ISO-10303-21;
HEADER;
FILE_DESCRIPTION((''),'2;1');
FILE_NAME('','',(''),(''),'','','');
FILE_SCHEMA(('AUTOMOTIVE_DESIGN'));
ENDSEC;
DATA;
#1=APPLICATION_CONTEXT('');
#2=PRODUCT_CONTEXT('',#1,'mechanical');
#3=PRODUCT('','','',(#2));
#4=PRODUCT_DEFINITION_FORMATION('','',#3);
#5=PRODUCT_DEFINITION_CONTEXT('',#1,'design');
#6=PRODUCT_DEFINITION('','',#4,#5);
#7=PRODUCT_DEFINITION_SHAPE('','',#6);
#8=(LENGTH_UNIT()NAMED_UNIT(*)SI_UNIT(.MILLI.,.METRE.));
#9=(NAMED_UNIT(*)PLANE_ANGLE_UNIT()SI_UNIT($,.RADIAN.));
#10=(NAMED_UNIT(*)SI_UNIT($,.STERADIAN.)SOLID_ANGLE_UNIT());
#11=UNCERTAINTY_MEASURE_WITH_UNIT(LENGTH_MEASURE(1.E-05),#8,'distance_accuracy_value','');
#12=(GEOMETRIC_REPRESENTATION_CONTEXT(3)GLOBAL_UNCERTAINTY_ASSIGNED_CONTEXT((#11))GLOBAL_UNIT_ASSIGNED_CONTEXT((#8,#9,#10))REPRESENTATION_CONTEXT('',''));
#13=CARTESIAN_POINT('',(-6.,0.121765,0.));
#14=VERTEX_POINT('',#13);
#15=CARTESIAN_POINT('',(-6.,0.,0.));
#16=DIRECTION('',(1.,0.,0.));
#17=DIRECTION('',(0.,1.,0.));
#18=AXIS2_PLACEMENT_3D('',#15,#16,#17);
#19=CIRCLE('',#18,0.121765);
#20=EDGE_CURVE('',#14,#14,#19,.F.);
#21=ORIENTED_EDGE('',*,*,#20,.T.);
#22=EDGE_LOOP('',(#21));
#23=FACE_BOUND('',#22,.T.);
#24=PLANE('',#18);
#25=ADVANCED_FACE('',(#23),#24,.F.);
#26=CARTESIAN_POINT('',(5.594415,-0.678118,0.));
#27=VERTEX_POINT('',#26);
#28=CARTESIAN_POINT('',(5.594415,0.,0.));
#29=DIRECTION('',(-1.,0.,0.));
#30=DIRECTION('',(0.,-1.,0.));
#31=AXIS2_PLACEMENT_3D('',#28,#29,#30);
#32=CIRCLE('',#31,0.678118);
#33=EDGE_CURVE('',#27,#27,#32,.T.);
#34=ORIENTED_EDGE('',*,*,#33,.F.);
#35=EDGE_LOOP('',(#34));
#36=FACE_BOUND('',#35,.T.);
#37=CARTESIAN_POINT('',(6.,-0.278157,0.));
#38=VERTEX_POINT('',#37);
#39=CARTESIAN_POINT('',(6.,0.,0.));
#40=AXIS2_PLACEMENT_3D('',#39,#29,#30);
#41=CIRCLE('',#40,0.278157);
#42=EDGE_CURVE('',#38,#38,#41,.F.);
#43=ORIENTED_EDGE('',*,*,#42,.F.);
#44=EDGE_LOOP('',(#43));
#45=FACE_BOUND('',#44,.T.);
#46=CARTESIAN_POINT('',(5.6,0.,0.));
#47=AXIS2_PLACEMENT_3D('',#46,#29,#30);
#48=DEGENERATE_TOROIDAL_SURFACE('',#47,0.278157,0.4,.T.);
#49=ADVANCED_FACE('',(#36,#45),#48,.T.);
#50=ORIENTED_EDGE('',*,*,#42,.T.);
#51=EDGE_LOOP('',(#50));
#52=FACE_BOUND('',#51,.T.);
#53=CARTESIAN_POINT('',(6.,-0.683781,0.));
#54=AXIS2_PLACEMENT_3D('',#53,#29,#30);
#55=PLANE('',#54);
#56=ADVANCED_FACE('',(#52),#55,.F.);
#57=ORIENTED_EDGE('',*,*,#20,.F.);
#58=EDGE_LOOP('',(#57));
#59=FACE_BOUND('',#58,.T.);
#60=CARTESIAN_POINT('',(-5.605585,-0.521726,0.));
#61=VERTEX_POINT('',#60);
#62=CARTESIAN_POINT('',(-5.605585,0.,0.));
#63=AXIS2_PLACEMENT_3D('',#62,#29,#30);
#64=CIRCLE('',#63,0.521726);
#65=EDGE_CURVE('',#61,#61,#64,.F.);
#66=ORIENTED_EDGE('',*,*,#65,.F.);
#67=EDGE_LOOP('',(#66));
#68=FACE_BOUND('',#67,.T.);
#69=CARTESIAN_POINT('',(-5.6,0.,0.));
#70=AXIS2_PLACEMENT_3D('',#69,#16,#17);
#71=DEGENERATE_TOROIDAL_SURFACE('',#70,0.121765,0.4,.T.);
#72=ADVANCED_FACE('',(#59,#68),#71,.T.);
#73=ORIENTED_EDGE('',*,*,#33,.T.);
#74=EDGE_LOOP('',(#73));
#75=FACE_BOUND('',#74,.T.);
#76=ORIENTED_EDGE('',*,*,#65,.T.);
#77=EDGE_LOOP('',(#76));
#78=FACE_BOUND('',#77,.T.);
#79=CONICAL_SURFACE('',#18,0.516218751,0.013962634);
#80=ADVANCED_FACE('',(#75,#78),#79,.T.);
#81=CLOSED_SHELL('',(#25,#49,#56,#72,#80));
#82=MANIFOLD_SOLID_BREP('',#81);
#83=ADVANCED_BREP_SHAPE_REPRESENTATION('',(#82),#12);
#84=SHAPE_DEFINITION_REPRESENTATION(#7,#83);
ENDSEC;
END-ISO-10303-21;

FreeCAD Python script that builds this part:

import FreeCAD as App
import Part
import Sketcher
from FreeCAD import Vector
Q = App.Units.Quantity


def edges_at(feature, points):
    """Names of the edges that pass closest to the given points."""
    edges = feature.Shape.Edges
    near = lambda p: min(range(len(edges)), key=lambda i: edges[i].distToShape(Part.Vertex(*p))[0])
    return sorted({f"Edge{near(p) + 1}" for p in points})

doc = App.newDocument("Part")
body = doc.addObject("PartDesign::Body", "Body")

# Sketch on XY plane
sketch1 = doc.addObject("Sketcher::SketchObject", "Sketch")
body.addObject(sketch1)
sketch1.AttachmentSupport = (doc.XY_Plane, [""])
sketch1.MapMode = "FlatFace"
sketch1.addGeometry([
    Part.LineSegment(Vector(6, 0, 0), Vector(-6, 0, 0)),
    Part.LineSegment(Vector(-6, 0, 0), Vector(-6, -0.5, 0)),
    Part.LineSegment(Vector(-6, -0.5, 0), Vector(6, -0.7, 0)),
    Part.LineSegment(Vector(6, -0.7, 0), Vector(6, 0, 0)),
], False)
sketch1.addConstraint([
    Sketcher.Constraint("Coincident", 0, 2, 1, 1),
    Sketcher.Constraint("Coincident", 1, 2, 2, 1),
    Sketcher.Constraint("Coincident", 2, 2, 3, 1),
    Sketcher.Constraint("Coincident", 3, 2, 0, 1),
    Sketcher.Constraint("Horizontal", 0),
    Sketcher.Constraint("Vertical", 1),
    Sketcher.Constraint("Vertical", 3),
    Sketcher.Constraint("Symmetric", 0, 2, 3, 2, -1, 1),
    Sketcher.Constraint("DistanceX", 0, 2, 0, 1, Q("12 mm")),
    Sketcher.Constraint("Angle", 2, Q("-0.8 deg")),
    Sketcher.Constraint("DistanceY", 1, 2, 1, 1, Q("0.516219 mm")),
])
revolution = doc.addObject("PartDesign::Revolution", "Revolution")
body.addObject(revolution)
revolution.Profile = sketch1
revolution.ReferenceAxis = (sketch1, ["H_Axis"])
revolution.Angle = 360
doc.recompute()

fillet = doc.addObject("PartDesign::Fillet", "Fillet")
body.addObject(fillet)
fillet.Base = (revolution, edges_at(revolution, [(6, 0.684, 0), (-6, 0.516, 0)]))
fillet.Radius = 0.4

doc.recompute()
